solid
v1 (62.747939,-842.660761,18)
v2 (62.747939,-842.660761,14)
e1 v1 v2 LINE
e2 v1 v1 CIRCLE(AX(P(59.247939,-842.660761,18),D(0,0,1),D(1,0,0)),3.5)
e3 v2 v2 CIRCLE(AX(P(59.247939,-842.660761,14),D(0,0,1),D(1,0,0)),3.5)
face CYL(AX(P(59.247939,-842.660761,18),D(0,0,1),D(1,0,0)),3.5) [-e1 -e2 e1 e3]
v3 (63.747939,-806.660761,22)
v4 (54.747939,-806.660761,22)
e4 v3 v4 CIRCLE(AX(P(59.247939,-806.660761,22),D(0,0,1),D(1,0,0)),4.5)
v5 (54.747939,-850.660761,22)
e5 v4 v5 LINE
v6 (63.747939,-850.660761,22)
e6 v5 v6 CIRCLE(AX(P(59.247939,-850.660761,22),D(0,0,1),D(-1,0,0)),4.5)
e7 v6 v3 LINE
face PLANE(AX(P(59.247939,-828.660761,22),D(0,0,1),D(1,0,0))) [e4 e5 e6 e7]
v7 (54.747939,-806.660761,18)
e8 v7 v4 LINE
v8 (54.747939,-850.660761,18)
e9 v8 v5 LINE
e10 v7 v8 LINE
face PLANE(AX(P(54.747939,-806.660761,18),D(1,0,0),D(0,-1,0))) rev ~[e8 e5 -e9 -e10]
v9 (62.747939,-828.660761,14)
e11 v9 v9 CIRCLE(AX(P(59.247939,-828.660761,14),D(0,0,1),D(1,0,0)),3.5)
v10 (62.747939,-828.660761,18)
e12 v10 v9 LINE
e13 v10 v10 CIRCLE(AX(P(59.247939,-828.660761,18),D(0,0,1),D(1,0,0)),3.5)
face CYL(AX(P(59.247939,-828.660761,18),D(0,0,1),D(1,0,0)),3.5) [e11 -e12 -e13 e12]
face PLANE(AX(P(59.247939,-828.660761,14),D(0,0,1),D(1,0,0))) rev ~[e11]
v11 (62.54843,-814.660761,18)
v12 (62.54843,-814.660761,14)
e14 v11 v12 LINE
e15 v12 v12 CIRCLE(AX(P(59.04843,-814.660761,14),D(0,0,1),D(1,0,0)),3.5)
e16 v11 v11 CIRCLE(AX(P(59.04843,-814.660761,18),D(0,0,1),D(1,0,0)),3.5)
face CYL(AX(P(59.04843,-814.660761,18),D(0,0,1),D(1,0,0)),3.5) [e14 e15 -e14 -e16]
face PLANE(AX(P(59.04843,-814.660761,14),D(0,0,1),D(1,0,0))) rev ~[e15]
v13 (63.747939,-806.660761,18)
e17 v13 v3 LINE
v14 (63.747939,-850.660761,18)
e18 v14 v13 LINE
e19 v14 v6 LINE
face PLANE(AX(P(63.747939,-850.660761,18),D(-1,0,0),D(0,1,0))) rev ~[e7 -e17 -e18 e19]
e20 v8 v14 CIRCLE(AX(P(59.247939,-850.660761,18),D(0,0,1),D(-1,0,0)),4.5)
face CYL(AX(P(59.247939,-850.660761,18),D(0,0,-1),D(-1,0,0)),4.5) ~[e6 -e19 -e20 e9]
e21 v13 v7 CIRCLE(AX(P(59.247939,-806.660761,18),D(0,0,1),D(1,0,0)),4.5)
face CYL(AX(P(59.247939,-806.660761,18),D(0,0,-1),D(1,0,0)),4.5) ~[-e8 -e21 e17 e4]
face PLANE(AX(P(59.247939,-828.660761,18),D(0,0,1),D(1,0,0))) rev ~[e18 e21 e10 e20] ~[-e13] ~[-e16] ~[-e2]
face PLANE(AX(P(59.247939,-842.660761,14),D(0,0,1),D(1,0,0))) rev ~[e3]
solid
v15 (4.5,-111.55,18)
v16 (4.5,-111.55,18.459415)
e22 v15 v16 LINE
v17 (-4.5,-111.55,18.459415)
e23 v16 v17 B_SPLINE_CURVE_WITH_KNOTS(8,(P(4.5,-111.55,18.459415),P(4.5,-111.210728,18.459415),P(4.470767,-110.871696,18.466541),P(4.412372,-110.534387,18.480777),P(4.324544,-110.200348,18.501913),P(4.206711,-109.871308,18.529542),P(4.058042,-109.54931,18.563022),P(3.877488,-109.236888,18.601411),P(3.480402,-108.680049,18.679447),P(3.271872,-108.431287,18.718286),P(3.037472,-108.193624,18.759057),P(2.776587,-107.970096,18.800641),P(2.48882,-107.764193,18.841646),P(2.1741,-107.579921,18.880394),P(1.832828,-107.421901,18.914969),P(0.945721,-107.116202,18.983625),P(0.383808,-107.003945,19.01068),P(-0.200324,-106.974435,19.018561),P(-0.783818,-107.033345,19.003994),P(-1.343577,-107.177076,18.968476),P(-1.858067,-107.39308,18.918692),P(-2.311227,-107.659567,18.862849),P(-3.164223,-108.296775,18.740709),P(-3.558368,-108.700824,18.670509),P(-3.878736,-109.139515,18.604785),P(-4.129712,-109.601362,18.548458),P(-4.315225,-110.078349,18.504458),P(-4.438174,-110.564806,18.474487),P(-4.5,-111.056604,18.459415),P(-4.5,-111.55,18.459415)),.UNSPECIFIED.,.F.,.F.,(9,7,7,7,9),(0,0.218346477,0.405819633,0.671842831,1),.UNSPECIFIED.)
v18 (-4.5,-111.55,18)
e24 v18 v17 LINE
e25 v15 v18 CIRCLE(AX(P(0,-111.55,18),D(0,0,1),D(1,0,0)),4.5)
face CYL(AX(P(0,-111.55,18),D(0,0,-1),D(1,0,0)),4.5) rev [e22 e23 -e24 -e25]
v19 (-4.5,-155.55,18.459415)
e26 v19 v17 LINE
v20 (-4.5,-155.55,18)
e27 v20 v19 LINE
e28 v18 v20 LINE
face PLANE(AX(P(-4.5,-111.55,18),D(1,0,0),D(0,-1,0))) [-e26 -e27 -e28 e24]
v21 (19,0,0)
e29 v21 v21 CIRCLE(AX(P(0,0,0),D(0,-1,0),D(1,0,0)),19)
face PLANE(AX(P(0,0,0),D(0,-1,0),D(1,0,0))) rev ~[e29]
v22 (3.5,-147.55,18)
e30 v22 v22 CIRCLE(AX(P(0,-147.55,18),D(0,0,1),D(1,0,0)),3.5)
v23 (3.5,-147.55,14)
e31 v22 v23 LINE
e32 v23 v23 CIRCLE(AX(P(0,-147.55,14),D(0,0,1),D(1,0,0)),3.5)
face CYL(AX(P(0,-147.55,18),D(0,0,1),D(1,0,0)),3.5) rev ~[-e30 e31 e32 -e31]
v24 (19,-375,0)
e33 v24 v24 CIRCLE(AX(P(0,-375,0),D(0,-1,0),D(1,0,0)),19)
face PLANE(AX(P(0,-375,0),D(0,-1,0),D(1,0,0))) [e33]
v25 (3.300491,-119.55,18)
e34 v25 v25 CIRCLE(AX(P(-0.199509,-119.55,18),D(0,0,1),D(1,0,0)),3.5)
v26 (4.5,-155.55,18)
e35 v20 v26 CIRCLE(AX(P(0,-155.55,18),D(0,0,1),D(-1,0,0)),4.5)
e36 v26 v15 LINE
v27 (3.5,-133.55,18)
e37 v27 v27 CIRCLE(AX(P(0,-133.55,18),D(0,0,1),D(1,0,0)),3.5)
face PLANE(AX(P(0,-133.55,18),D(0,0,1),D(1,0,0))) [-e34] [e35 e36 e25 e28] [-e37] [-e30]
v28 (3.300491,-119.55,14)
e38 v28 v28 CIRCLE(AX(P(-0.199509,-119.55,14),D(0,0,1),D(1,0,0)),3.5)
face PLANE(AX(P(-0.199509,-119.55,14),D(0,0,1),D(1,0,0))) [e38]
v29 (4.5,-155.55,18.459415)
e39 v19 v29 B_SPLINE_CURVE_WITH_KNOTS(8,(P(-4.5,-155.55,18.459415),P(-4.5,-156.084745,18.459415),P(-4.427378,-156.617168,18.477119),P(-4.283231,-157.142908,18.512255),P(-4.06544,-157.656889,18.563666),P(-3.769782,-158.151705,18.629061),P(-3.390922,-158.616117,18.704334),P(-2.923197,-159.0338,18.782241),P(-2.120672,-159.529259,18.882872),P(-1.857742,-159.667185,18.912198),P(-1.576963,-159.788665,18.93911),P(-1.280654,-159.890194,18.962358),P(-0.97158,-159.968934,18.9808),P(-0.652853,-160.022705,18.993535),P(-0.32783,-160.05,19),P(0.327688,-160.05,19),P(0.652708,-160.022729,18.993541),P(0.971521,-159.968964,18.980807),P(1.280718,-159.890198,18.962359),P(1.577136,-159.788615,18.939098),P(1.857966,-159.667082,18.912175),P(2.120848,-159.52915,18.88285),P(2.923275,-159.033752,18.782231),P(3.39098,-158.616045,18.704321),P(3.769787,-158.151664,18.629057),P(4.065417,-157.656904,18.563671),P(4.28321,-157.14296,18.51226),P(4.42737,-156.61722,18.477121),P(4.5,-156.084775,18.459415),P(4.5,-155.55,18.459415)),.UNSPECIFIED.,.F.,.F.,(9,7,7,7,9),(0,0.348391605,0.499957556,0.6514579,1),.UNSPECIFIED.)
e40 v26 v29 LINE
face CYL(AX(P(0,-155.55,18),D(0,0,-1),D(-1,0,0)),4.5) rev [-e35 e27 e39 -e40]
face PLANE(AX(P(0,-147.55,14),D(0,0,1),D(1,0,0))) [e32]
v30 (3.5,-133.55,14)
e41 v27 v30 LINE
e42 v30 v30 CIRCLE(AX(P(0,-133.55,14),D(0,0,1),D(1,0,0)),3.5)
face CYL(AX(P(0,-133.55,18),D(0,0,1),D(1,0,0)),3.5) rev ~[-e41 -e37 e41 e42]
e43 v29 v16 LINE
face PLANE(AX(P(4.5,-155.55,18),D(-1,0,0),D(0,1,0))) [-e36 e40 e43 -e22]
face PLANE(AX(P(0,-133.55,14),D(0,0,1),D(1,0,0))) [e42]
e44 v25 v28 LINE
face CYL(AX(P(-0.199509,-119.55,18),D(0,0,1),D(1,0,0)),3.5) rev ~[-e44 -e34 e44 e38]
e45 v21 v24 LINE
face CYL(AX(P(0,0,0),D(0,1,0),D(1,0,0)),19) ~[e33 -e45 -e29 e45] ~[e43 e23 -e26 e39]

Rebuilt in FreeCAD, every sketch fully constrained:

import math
import FreeCAD as App
import Part
import Sketcher

V = App.Vector
Q = App.Units.Quantity

doc = App.newDocument("Part")
body = doc.addObject("PartDesign::Body", "Body")

sketch1 = body.newObject("Sketcher::SketchObject", "Sketch")
sketch1.AttachmentSupport = (doc.getObject("XZ_Plane"), [""])
sketch1.MapMode = "FlatFace"
sketch1.addGeometry(Part.Circle(V(0, 0, 0), V(0, 0, 1), 19), False)
sketch1.addConstraint(Sketcher.Constraint("Coincident", 0, 3, -1, 1))
sketch1.addConstraint(Sketcher.Constraint("Diameter", 0, Q("38 mm")))
pad1 = body.newObject("PartDesign::Pad", "Pad")
pad1.Profile = sketch1
pad1.Length = 375

sketch2 = body.newObject("Sketcher::SketchObject", "Sketch001")
sketch2.AttachmentSupport = (doc.getObject("XY_Plane"), [""])
sketch2.MapMode = "FlatFace"
sketch2.AttachmentOffset = App.Placement(V(0, 0, 18), App.Rotation())
sketch2.addGeometry(Part.LineSegment(V(4.5, -155.6, 0), V(4.5, -111.5, 0)), False)
sketch2.addGeometry(Part.ArcOfCircle(Part.Circle(V(0, -111.5, 0), V(0, 0, 1), 4.5), math.radians(0), math.radians(180)), False)
sketch2.addGeometry(Part.LineSegment(V(-4.5, -111.5, 0), V(-4.5, -155.6, 0)), False)
sketch2.addGeometry(Part.ArcOfCircle(Part.Circle(V(0, -155.6, 0), V(0, 0, 1), 4.5), math.radians(180), math.radians(360)), False)
sketch2.addConstraint(Sketcher.Constraint("Tangent", 0, 2, 1, 1))
sketch2.addConstraint(Sketcher.Constraint("Tangent", 1, 2, 2, 1))
sketch2.addConstraint(Sketcher.Constraint("Tangent", 2, 2, 3, 1))
sketch2.addConstraint(Sketcher.Constraint("Tangent", 3, 2, 0, 1))
sketch2.addConstraint(Sketcher.Constraint("Vertical", 0))
sketch2.addConstraint(Sketcher.Constraint("Vertical", 2))
sketch2.addConstraint(Sketcher.Constraint("PointOnObject", 1, 3, -2))
sketch2.addConstraint(Sketcher.Constraint("Radius", 1, Q("4.5 mm")))
sketch2.addConstraint(Sketcher.Constraint("DistanceY", 0, 1, 0, 2, Q("44 mm")))
sketch2.addConstraint(Sketcher.Constraint("DistanceY", 1, 3, -1, 1, Q("111.55 mm")))
pocket1 = body.newObject("PartDesign::Pocket", "Pocket")
pocket1.Profile = sketch2
pocket1.Length = 5
pocket1.Reversed = True

sketch3 = body.newObject("Sketcher::SketchObject", "Sketch002")
sketch3.AttachmentSupport = (doc.getObject("XY_Plane"), [""])
sketch3.MapMode = "FlatFace"
sketch3.AttachmentOffset = App.Placement(V(0, 0, 18), App.Rotation())
sketch3.addGeometry(Part.Circle(V(0, -147.6, 0), V(0, 0, 1), 3.5), False)
sketch3.addGeometry(Part.Circle(V(0, -133.6, 0), V(0, 0, 1), 3.5), False)
sketch3.addGeometry(Part.Circle(V(-0.2, -119.5, 0), V(0, 0, 1), 3.5), False)
sketch3.addConstraint(Sketcher.Constraint("Equal", 0, 1))
sketch3.addConstraint(Sketcher.Constraint("Equal", 1, 2))
sketch3.addConstraint(Sketcher.Constraint("PointOnObject", 0, 3, -2))
sketch3.addConstraint(Sketcher.Constraint("PointOnObject", 1, 3, -2))
sketch3.addConstraint(Sketcher.Constraint("Diameter", 0, Q("7 mm")))
sketch3.addConstraint(Sketcher.Constraint("DistanceY", 0, 3, 1, 3, Q("14 mm")))
sketch3.addConstraint(Sketcher.Constraint("DistanceY", 1, 3, 2, 3, Q("14 mm")))
sketch3.addConstraint(Sketcher.Constraint("DistanceY", 0, 3, -1, 1, Q("147.55 mm")))
sketch3.addConstraint(Sketcher.Constraint("DistanceX", 2, 3, -1, 1, Q("0.199509 mm")))
pocket2 = body.newObject("PartDesign::Pocket", "Pocket001")
pocket2.Profile = sketch3
pocket2.Length = 4
body2 = doc.addObject("PartDesign::Body", "Body001")

sketch4 = body2.newObject("Sketcher::SketchObject", "Sketch003")
sketch4.AttachmentSupport = (doc.getObject("XY_Plane001"), [""])
sketch4.MapMode = "FlatFace"
sketch4.AttachmentOffset = App.Placement(V(0, 0, 18), App.Rotation())
sketch4.addGeometry(Part.LineSegment(V(63.7, -850.7, 0), V(63.7, -806.7, 0)), False)
sketch4.addGeometry(Part.ArcOfCircle(Part.Circle(V(59.2, -806.7, 0), V(0, 0, 1), 4.5), math.radians(0), math.radians(180)), False)
sketch4.addGeometry(Part.LineSegment(V(54.7, -806.7, 0), V(54.7, -850.7, 0)), False)
sketch4.addGeometry(Part.ArcOfCircle(Part.Circle(V(59.2, -850.7, 0), V(0, 0, 1), 4.5), math.radians(180), math.radians(360)), False)
sketch4.addConstraint(Sketcher.Constraint("Tangent", 0, 2, 1, 1))
sketch4.addConstraint(Sketcher.Constraint("Tangent", 1, 2, 2, 1))
sketch4.addConstraint(Sketcher.Constraint("Tangent", 2, 2, 3, 1))
sketch4.addConstraint(Sketcher.Constraint("Tangent", 3, 2, 0, 1))
sketch4.addConstraint(Sketcher.Constraint("Vertical", 0))
sketch4.addConstraint(Sketcher.Constraint("Vertical", 2))
sketch4.addConstraint(Sketcher.Constraint("Radius", 1, Q("4.5 mm")))
sketch4.addConstraint(Sketcher.Constraint("DistanceY", 0, 1, 0, 2, Q("44 mm")))
sketch4.addConstraint(Sketcher.Constraint("DistanceX", -1, 1, 1, 3, Q("59.247939 mm")))
sketch4.addConstraint(Sketcher.Constraint("DistanceY", 1, 3, -1, 1, Q("806.660761 mm")))
pad2 = body2.newObject("PartDesign::Pad", "Pad001")
pad2.Profile = sketch4
pad2.Length = 4

sketch5 = body2.newObject("Sketcher::SketchObject", "Sketch004")
sketch5.AttachmentSupport = (doc.getObject("XY_Plane001"), [""])
sketch5.MapMode = "FlatFace"
sketch5.AttachmentOffset = App.Placement(V(0, 0, 18), App.Rotation())
sketch5.addGeometry(Part.Circle(V(59.2, -842.7, 0), V(0, 0, 1), 3.5), False)
sketch5.addGeometry(Part.Circle(V(59.2, -828.7, 0), V(0, 0, 1), 3.5), False)
sketch5.addGeometry(Part.Circle(V(59, -814.7, 0), V(0, 0, 1), 3.5), False)
sketch5.addConstraint(Sketcher.Constraint("Equal", 0, 1))
sketch5.addConstraint(Sketcher.Constraint("Equal", 1, 2))
sketch5.addConstraint(Sketcher.Constraint("Vertical", 0, 3, 1, 3))
sketch5.addConstraint(Sketcher.Constraint("Diameter", 0, Q("7 mm")))
sketch5.addConstraint(Sketcher.Constraint("DistanceY", 0, 3, 1, 3, Q("14 mm")))
sketch5.addConstraint(Sketcher.Constraint("DistanceY", 1, 3, 2, 3, Q("14 mm")))
sketch5.addConstraint(Sketcher.Constraint("DistanceX", -1, 1, 0, 3, Q("59.247939 mm")))
sketch5.addConstraint(Sketcher.Constraint("DistanceY", 0, 3, -1, 1, Q("842.660761 mm")))
sketch5.addConstraint(Sketcher.Constraint("DistanceX", -1, 1, 2, 3, Q("59.04843 mm")))
pad3 = body2.newObject("PartDesign::Pad", "Pad002")
pad3.Profile = sketch5
pad3.Length = 4
pad3.Reversed = True

doc.recompute()
